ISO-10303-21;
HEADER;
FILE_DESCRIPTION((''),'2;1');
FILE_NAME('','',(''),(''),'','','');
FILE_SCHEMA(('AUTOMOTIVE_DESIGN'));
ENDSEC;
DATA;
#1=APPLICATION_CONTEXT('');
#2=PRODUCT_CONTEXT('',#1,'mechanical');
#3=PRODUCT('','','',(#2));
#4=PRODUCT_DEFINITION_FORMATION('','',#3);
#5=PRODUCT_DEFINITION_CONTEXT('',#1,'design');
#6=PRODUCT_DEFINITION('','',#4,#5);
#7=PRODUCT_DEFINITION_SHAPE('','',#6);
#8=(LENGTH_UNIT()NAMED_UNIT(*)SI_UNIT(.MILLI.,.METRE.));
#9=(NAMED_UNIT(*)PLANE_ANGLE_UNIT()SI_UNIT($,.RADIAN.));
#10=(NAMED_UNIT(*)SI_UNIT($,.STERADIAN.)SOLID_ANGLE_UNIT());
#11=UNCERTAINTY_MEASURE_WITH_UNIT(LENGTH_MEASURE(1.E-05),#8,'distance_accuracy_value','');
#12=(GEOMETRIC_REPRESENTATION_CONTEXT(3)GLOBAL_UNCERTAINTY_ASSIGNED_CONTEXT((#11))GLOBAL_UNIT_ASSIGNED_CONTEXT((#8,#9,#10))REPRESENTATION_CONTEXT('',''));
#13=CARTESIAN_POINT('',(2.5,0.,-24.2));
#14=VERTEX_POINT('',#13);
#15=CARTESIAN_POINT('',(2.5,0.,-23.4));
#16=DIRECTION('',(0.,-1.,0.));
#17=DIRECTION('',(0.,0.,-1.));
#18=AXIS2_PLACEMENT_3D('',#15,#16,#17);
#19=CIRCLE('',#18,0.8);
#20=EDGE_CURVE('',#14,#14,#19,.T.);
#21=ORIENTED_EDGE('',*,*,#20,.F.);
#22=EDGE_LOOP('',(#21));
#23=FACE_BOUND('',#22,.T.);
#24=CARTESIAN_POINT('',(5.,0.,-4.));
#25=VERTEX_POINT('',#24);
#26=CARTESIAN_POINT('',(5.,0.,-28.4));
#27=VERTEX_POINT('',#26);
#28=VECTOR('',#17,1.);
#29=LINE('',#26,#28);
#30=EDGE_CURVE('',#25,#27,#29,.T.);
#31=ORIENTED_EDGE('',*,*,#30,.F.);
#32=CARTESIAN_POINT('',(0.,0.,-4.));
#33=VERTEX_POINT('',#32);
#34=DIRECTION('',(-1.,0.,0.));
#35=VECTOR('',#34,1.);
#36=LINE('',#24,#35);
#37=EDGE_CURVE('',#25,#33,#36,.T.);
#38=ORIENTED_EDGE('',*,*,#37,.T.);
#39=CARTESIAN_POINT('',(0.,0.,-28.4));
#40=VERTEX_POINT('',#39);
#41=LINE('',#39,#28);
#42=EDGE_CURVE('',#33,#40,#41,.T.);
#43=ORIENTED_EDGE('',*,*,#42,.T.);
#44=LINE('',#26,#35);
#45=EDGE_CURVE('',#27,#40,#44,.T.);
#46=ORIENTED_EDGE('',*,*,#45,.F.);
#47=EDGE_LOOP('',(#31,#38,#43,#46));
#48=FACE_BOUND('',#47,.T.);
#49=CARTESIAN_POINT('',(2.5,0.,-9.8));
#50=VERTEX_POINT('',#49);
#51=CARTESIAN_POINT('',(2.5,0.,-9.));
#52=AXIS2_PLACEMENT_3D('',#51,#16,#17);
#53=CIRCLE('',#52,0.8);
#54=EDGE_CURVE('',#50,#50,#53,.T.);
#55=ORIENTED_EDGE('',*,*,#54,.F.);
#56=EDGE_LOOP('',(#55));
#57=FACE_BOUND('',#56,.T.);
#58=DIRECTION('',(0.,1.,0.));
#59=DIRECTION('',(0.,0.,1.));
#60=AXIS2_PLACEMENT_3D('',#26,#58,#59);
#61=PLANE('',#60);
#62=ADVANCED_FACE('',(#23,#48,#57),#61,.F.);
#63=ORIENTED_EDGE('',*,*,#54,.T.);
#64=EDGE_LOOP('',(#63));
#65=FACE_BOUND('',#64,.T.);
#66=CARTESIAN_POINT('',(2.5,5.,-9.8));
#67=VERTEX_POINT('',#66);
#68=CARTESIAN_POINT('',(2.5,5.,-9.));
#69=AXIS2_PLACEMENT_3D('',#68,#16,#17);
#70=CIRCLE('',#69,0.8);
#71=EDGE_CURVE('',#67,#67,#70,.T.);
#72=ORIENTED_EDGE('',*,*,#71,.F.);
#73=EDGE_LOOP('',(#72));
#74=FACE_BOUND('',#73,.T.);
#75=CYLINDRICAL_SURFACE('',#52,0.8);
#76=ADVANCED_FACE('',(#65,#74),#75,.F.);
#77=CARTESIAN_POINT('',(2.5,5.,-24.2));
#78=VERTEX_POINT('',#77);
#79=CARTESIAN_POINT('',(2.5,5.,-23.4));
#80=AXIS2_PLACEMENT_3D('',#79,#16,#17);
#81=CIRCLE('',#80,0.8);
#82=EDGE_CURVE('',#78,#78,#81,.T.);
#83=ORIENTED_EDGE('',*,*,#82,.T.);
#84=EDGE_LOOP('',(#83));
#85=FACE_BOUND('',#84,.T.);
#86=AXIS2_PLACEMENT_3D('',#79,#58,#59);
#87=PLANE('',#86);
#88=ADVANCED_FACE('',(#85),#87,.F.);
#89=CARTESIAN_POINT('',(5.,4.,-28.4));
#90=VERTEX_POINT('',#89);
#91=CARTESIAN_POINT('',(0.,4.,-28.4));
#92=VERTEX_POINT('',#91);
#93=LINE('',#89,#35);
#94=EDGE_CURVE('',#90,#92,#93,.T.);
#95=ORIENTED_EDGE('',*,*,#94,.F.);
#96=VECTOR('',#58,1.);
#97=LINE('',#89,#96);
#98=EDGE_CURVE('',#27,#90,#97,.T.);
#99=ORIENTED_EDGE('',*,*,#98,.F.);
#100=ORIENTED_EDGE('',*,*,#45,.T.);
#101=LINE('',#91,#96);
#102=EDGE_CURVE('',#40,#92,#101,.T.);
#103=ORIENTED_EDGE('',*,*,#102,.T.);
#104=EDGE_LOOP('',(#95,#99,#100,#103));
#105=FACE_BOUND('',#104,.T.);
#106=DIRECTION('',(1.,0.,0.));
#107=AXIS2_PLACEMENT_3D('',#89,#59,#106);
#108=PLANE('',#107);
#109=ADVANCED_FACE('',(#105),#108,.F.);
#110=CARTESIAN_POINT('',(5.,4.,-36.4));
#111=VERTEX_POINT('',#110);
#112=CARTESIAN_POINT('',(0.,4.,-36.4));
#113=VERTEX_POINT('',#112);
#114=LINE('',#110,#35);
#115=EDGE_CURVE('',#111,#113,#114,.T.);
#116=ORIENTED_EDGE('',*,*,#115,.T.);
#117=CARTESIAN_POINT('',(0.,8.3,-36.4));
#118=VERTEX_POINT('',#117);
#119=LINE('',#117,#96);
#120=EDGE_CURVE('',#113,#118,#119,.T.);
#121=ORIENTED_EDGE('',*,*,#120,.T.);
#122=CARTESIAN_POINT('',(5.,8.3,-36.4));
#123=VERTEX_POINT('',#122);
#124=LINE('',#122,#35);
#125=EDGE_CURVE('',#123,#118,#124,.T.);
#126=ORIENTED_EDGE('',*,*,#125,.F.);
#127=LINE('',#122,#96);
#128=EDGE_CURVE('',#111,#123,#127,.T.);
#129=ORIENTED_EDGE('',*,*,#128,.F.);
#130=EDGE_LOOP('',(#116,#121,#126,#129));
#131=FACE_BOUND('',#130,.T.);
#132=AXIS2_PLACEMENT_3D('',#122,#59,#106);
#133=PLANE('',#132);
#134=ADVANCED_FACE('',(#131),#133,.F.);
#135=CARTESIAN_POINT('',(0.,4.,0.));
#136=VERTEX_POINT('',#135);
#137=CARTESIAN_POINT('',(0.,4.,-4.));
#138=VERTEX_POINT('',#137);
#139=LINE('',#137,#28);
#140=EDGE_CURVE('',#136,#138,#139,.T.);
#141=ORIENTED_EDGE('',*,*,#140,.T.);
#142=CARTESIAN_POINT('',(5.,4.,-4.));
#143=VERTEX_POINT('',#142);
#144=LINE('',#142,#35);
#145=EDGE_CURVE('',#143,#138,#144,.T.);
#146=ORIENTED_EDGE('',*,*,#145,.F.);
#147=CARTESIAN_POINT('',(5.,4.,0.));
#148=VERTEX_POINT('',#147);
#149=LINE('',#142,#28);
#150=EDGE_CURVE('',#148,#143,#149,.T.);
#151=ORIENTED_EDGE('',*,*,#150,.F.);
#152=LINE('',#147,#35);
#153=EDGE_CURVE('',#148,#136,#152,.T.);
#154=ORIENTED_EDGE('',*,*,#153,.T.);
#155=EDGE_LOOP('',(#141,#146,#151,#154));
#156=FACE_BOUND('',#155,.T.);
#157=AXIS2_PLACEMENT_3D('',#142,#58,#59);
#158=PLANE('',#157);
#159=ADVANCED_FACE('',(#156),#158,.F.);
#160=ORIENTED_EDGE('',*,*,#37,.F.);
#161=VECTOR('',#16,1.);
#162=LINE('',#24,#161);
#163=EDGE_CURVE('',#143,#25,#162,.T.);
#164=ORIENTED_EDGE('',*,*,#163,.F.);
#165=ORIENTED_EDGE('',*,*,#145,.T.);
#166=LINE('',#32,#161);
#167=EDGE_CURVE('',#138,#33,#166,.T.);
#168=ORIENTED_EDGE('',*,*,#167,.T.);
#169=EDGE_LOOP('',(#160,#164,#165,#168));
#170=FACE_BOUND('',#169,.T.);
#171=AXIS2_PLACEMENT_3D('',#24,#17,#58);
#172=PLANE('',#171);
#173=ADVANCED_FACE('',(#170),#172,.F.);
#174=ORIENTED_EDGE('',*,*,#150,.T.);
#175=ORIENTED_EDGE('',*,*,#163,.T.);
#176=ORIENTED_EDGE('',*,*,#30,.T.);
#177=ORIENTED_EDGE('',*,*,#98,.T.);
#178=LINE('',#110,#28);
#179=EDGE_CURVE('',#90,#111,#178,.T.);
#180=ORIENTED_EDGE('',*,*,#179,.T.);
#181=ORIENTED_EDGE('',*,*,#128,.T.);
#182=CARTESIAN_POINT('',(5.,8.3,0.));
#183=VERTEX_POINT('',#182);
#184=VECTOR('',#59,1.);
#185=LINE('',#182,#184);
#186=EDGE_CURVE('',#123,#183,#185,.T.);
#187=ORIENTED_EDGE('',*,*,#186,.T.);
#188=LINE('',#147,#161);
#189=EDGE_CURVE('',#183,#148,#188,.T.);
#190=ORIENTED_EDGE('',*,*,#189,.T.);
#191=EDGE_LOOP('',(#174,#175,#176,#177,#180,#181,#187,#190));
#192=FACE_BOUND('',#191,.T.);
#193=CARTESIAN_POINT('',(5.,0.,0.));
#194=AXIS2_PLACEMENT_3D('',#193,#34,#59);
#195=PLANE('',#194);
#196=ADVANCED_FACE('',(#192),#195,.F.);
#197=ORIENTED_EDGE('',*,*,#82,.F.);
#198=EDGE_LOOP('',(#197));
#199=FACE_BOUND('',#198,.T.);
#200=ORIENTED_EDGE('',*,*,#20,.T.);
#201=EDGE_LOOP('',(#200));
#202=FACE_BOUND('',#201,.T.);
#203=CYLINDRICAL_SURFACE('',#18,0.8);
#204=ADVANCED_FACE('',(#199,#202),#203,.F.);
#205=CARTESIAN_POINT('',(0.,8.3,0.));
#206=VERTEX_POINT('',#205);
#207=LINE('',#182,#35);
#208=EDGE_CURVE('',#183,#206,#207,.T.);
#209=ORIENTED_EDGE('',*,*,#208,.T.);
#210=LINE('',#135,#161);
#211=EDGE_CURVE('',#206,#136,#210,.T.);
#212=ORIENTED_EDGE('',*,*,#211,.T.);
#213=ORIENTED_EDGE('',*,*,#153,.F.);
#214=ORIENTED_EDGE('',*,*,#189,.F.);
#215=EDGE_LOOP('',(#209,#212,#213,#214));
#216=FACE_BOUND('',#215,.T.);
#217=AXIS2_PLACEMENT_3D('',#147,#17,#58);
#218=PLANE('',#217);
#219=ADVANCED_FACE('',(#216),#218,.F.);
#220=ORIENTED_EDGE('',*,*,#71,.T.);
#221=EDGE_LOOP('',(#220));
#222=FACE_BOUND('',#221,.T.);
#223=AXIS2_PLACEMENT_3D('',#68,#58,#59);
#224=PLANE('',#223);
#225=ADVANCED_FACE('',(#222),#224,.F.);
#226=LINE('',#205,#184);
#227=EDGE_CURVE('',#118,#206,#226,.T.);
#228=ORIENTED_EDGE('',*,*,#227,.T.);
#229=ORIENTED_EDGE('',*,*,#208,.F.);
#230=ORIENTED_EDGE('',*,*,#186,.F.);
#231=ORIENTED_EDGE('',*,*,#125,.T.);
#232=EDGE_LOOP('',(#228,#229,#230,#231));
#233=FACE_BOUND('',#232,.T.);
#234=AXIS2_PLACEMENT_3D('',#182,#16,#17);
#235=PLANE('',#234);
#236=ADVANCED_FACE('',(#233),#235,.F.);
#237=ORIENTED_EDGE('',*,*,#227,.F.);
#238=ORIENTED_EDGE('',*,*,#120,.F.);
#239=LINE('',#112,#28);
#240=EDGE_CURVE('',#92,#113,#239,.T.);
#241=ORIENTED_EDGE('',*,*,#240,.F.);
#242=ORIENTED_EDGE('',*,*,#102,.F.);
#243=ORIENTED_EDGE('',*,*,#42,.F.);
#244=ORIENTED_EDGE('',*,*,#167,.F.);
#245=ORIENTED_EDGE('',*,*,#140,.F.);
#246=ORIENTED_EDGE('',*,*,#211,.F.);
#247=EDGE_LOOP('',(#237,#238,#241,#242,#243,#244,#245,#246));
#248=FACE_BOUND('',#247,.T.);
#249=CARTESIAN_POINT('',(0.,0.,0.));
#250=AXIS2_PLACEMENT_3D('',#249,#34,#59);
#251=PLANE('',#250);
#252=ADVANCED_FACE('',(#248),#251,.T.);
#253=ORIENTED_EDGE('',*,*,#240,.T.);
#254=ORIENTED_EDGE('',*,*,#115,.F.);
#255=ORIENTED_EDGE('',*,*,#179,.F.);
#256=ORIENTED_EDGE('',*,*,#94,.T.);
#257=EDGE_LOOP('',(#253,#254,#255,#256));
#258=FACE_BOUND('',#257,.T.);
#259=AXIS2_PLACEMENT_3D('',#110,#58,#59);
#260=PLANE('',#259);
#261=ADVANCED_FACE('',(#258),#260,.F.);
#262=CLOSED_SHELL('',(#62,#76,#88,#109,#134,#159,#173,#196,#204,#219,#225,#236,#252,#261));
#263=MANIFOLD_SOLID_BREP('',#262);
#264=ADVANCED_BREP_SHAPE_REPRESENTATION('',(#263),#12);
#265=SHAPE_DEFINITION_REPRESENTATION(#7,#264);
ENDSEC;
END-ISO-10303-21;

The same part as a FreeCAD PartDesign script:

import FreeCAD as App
import Part
import Sketcher
Q = App.Units.Quantity

doc = App.newDocument("Part")
body = doc.addObject("PartDesign::Body", "Body")

sketch1 = doc.addObject("Sketcher::SketchObject", "Sketch")
body.addObject(sketch1)
sketch1.AttachmentSupport = (doc.YZ_Plane, [""])
sketch1.MapMode = "FlatFace"
sketch1.addGeometry(Part.LineSegment(App.Vector(8.3, 0, 0), App.Vector(4, 0, 0)), False)
sketch1.addGeometry(Part.LineSegment(App.Vector(4, 0, 0), App.Vector(4, -4, 0)), False)
sketch1.addGeometry(Part.LineSegment(App.Vector(4, -4, 0), App.Vector(0, -4, 0)), False)
sketch1.addGeometry(Part.LineSegment(App.Vector(0, -4, 0), App.Vector(0, -28.4, 0)), False)
sketch1.addGeometry(Part.LineSegment(App.Vector(0, -28.4, 0), App.Vector(4, -28.4, 0)), False)
sketch1.addGeometry(Part.LineSegment(App.Vector(4, -28.4, 0), App.Vector(4, -36.4, 0)), False)
sketch1.addGeometry(Part.LineSegment(App.Vector(4, -36.4, 0), App.Vector(8.3, -36.4, 0)), False)
sketch1.addGeometry(Part.LineSegment(App.Vector(8.3, -36.4, 0), App.Vector(8.3, 0, 0)), False)
sketch1.addConstraint(Sketcher.Constraint("Coincident", 0, 2, 1, 1))
sketch1.addConstraint(Sketcher.Constraint("Coincident", 1, 2, 2, 1))
sketch1.addConstraint(Sketcher.Constraint("Coincident", 2, 2, 3, 1))
sketch1.addConstraint(Sketcher.Constraint("Coincident", 3, 2, 4, 1))
sketch1.addConstraint(Sketcher.Constraint("Coincident", 4, 2, 5, 1))
sketch1.addConstraint(Sketcher.Constraint("Coincident", 5, 2, 6, 1))
sketch1.addConstraint(Sketcher.Constraint("Coincident", 6, 2, 7, 1))
sketch1.addConstraint(Sketcher.Constraint("Coincident", 7, 2, 0, 1))
sketch1.addConstraint(Sketcher.Constraint("Horizontal", 0))
sketch1.addConstraint(Sketcher.Constraint("Vertical", 1))
sketch1.addConstraint(Sketcher.Constraint("Horizontal", 2))
sketch1.addConstraint(Sketcher.Constraint("Vertical", 3))
sketch1.addConstraint(Sketcher.Constraint("Horizontal", 4))
sketch1.addConstraint(Sketcher.Constraint("Vertical", 5))
sketch1.addConstraint(Sketcher.Constraint("Horizontal", 6))
sketch1.addConstraint(Sketcher.Constraint("Vertical", 7))
sketch1.addConstraint(Sketcher.Constraint("PointOnObject", 0, 2, -1))
sketch1.addConstraint(Sketcher.Constraint("PointOnObject", 2, 2, -2))
sketch1.addConstraint(Sketcher.Constraint("Vertical", 1, 2, 4, 2))
sketch1.addConstraint(Sketcher.Constraint("Equal", 4, 1))
sketch1.addConstraint(Sketcher.Constraint("DistanceX", 2, 2, 2, 1, Q("4 mm")))
sketch1.addConstraint(Sketcher.Constraint("DistanceY", 5, 2, 5, 1, Q("8 mm")))
sketch1.addConstraint(Sketcher.Constraint("DistanceX", 0, 2, 0, 1, Q("4.3 mm")))
sketch1.addConstraint(Sketcher.Constraint("DistanceY", 3, 2, 3, 1, Q("24.4 mm")))
pad1 = doc.addObject("PartDesign::Pad", "Pad")
body.addObject(pad1)
pad1.Profile = sketch1
pad1.Length = 5

sketch2 = doc.addObject("Sketcher::SketchObject", "Sketch001")
body.addObject(sketch2)
sketch2.AttachmentSupport = (doc.XZ_Plane, [""])
sketch2.MapMode = "FlatFace"
sketch2.addGeometry(Part.Circle(App.Vector(2.5, -9, 0), App.Vector(0, 0, 1), 0.8), False)
sketch2.addGeometry(Part.Circle(App.Vector(2.5, -23.4, 0), App.Vector(0, 0, 1), 0.8), False)
sketch2.addConstraint(Sketcher.Constraint("Equal", 0, 1))
sketch2.addConstraint(Sketcher.Constraint("Vertical", 0, 3, 1, 3))
sketch2.addConstraint(Sketcher.Constraint("Diameter", 0, Q("1.6 mm")))
sketch2.addConstraint(Sketcher.Constraint("DistanceY", 0, 3, -1, 1, Q("9 mm")))
sketch2.addConstraint(Sketcher.Constraint("DistanceX", -1, 1, 0, 3, Q("2.5 mm")))
sketch2.addConstraint(Sketcher.Constraint("DistanceY", 1, 3, -1, 1, Q("23.4 mm")))
doc.recompute()
hole = doc.addObject("PartDesign::Hole", "Hole")
body.addObject(hole)
hole.Profile = sketch2
hole.ThreadType = "None"
hole.Diameter = 1.6
hole.DepthType = "Dimension"
hole.Depth = 5
hole.DrillPoint = "Flat"

doc.recompute()
